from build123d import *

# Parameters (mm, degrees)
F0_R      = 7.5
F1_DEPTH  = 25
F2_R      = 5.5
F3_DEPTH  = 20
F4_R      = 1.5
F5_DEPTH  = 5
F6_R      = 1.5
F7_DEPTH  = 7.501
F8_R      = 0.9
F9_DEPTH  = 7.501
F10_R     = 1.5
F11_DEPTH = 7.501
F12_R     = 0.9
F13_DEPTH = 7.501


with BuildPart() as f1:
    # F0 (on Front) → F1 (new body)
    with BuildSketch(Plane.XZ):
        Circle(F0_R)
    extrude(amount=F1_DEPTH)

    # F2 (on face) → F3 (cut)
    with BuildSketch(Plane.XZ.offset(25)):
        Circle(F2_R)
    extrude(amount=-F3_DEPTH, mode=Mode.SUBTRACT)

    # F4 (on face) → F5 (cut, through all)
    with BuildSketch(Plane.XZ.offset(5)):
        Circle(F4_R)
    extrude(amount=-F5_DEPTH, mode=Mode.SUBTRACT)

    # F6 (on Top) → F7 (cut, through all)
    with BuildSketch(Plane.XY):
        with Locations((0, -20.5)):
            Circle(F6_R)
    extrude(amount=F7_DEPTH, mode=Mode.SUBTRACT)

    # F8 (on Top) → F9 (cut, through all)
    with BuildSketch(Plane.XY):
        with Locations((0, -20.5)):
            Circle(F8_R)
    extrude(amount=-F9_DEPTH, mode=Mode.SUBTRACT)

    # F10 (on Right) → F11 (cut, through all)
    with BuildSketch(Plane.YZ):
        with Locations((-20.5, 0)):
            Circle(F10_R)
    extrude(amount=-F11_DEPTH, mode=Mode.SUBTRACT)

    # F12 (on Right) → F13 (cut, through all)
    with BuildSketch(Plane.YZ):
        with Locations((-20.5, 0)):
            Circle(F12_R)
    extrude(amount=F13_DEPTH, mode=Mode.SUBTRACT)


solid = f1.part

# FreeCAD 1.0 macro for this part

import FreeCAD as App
import Part
import Sketcher

doc = App.newDocument("Part")
params = doc.addObject("Spreadsheet::Sheet", "Params")
for row, (alias, value) in enumerate([
    ("sketch1_diameter", "15 mm"),
    ("pad1_length", "25 mm"),
    ("sketch2_diameter", "11 mm"),
    ("pocket1_length", "20 mm"),
    ("sketch3_diameter", "3 mm"),
    ("sketch4_diameter", "3 mm"),
    ("sketch5_diameter", "1.8 mm"),
    ("sketch6_diameter", "3 mm"),
    ("sketch7_diameter", "1.8 mm"),
], start=1):
    params.set(f"A{row}", alias)
    params.set(f"B{row}", "=" + value)
    params.setAlias(f"B{row}", alias)

body = doc.addObject("PartDesign::Body", "Body")

sketch1 = body.newObject("Sketcher::SketchObject", "Sketch")
sketch1.AttachmentSupport = (doc.getObject("XZ_Plane"), [""])
sketch1.MapMode = "FlatFace"
sketch1.addGeometry(Part.Circle(App.Vector(0, 0, 0), App.Vector(0, 0, 1), 8), False)
sketch1.addConstraint([
    Sketcher.Constraint("Coincident", 0, 3, -1, 1),
    Sketcher.Constraint("Diameter", 0, 15.0),
])
sketch1.setExpression("Constraints[1]", "Params.sketch1_diameter")
pad1 = body.newObject("PartDesign::Pad", "Pad")
pad1.Profile = sketch1
pad1.setExpression("Length", "Params.pad1_length")

sketch2 = body.newObject("Sketcher::SketchObject", "Sketch001")
sketch2.AttachmentSupport = (doc.getObject("XZ_Plane"), [""])
sketch2.MapMode = "FlatFace"
sketch2.AttachmentOffset = App.Placement(App.Vector(0, 0, 25), App.Rotation())
sketch2.addGeometry(Part.Circle(App.Vector(0, 0, 0), App.Vector(0, 0, 1), 6), False)
sketch2.addConstraint([
    Sketcher.Constraint("Coincident", 0, 3, -1, 1),
    Sketcher.Constraint("Diameter", 0, 11.0),
])
sketch2.setExpression("Constraints[1]", "Params.sketch2_diameter")
pocket1 = body.newObject("PartDesign::Pocket", "Pocket")
pocket1.Profile = sketch2
pocket1.setExpression("Length", "Params.pocket1_length")

sketch3 = body.newObject("Sketcher::SketchObject", "Sketch002")
sketch3.AttachmentSupport = (doc.getObject("XZ_Plane"), [""])
sketch3.MapMode = "FlatFace"
sketch3.AttachmentOffset = App.Placement(App.Vector(0, 0, 5), App.Rotation())
sketch3.addGeometry(Part.Circle(App.Vector(0, 0, 0), App.Vector(0, 0, 1), 1.5), False)
sketch3.addConstraint([
    Sketcher.Constraint("Coincident", 0, 3, -1, 1),
    Sketcher.Constraint("Diameter", 0, 3.0),
])
sketch3.setExpression("Constraints[1]", "Params.sketch3_diameter")
pocket2 = body.newObject("PartDesign::Pocket", "Pocket001")
pocket2.Profile = sketch3
pocket2.Type = "ThroughAll"

sketch4 = body.newObject("Sketcher::SketchObject", "Sketch003")
sketch4.AttachmentSupport = (doc.getObject("XY_Plane"), [""])
sketch4.MapMode = "FlatFace"
sketch4.addGeometry(Part.Circle(App.Vector(0, -20.5, 0), App.Vector(0, 0, 1), 1.5), False)
sketch4.addConstraint([
    Sketcher.Constraint("PointOnObject", 0, 3, -2),
    Sketcher.Constraint("Diameter", 0, 3.0),
    Sketcher.Constraint("DistanceY", 0, 3, -1, 1, 20.5),
])
sketch4.setExpression("Constraints[1]", "Params.sketch4_diameter")
pocket3 = body.newObject("PartDesign::Pocket", "Pocket002")
pocket3.Profile = sketch4
pocket3.Type = "ThroughAll"
pocket3.Reversed = True

sketch5 = body.newObject("Sketcher::SketchObject", "Sketch004")
sketch5.AttachmentSupport = (doc.getObject("XY_Plane"), [""])
sketch5.MapMode = "FlatFace"
sketch5.addGeometry(Part.Circle(App.Vector(0, -20.5, 0), App.Vector(0, 0, 1), 0.9), False)
sketch5.addConstraint([
    Sketcher.Constraint("PointOnObject", 0, 3, -2),
    Sketcher.Constraint("Diameter", 0, 1.8),
    Sketcher.Constraint("DistanceY", 0, 3, -1, 1, 20.5),
])
sketch5.setExpression("Constraints[1]", "Params.sketch5_diameter")
pocket4 = body.newObject("PartDesign::Pocket", "Pocket003")
pocket4.Profile = sketch5
pocket4.Type = "ThroughAll"

sketch6 = body.newObject("Sketcher::SketchObject", "Sketch005")
sketch6.AttachmentSupport = (doc.getObject("YZ_Plane"), [""])
sketch6.MapMode = "FlatFace"
sketch6.addGeometry(Part.Circle(App.Vector(-20.5, 0, 0), App.Vector(0, 0, 1), 1.5), False)
sketch6.addConstraint([
    Sketcher.Constraint("PointOnObject", 0, 3, -1),
    Sketcher.Constraint("Diameter", 0, 3.0),
    Sketcher.Constraint("DistanceX", 0, 3, -1, 1, 20.5),
])
sketch6.setExpression("Constraints[1]", "Params.sketch6_diameter")
pocket5 = body.newObject("PartDesign::Pocket", "Pocket004")
pocket5.Profile = sketch6
pocket5.Type = "ThroughAll"

sketch7 = body.newObject("Sketcher::SketchObject", "Sketch006")
sketch7.AttachmentSupport = (doc.getObject("YZ_Plane"), [""])
sketch7.MapMode = "FlatFace"
sketch7.addGeometry(Part.Circle(App.Vector(-20.5, 0, 0), App.Vector(0, 0, 1), 0.9), False)
sketch7.addConstraint([
    Sketcher.Constraint("PointOnObject", 0, 3, -1),
    Sketcher.Constraint("Diameter", 0, 1.8),
    Sketcher.Constraint("DistanceX", 0, 3, -1, 1, 20.5),
])
sketch7.setExpression("Constraints[1]", "Params.sketch7_diameter")
pocket6 = body.newObject("PartDesign::Pocket", "Pocket005")
pocket6.Profile = sketch7
pocket6.Type = "ThroughAll"
pocket6.Reversed = True

doc.recompute()
